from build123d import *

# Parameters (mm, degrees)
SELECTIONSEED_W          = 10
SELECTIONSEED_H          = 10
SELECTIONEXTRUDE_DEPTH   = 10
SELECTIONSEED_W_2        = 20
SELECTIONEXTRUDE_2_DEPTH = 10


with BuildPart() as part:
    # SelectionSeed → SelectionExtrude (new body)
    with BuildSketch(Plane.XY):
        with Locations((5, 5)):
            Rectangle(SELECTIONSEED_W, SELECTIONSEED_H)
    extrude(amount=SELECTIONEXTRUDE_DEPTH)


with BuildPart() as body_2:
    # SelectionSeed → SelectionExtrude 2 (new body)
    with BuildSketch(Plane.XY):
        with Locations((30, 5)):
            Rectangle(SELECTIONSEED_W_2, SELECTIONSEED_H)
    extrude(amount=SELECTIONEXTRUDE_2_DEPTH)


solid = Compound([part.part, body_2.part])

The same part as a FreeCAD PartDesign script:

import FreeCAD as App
import Part
import Sketcher

doc = App.newDocument("Part")
params = doc.addObject("Spreadsheet::Sheet", "Params")
for row, (alias, value) in enumerate([
    ("sketch1_width", "10 mm"),
    ("pad1_length", "10 mm"),
    ("sketch2_width", "20 mm"),
    ("sketch2_height", "10 mm"),
    ("pad2_length", "10 mm"),
], start=1):
    params.set(f"A{row}", alias)
    params.set(f"B{row}", "=" + value)
    params.setAlias(f"B{row}", alias)

body = doc.addObject("PartDesign::Body", "Body")

# Sketch on XY plane
sketch1 = body.newObject("Sketcher::SketchObject", "Sketch")
sketch1.AttachmentSupport = (doc.getObject("XY_Plane"), [""])
sketch1.MapMode = "FlatFace"
sketch1.addGeometry([
    Part.LineSegment(App.Vector(0, 10, 0), App.Vector(0, 0, 0)),
    Part.LineSegment(App.Vector(0, 0, 0), App.Vector(10, 0, 0)),
    Part.LineSegment(App.Vector(10, 0, 0), App.Vector(10, 10, 0)),
    Part.LineSegment(App.Vector(10, 10, 0), App.Vector(0, 10, 0)),
], False)
sketch1.addConstraint([
    Sketcher.Constraint("Coincident", 0, 2, 1, 1),
    Sketcher.Constraint("Coincident", 1, 2, 2, 1),
    Sketcher.Constraint("Coincident", 2, 2, 3, 1),
    Sketcher.Constraint("Coincident", 3, 2, 0, 1),
    Sketcher.Constraint("Vertical", 0),
    Sketcher.Constraint("Horizontal", 1),
    Sketcher.Constraint("Vertical", 2),
    Sketcher.Constraint("Horizontal", 3),
    Sketcher.Constraint("Coincident", 0, 2, -1, 1),
    Sketcher.Constraint("Equal", 3, 0),
    Sketcher.Constraint("DistanceX", 1, 1, 1, 2, 10.0),
])
sketch1.setExpression("Constraints[10]", "Params.sketch1_width")
pad1 = body.newObject("PartDesign::Pad", "Pad")
pad1.Profile = sketch1
pad1.setExpression("Length", "Params.pad1_length")
body2 = doc.addObject("PartDesign::Body", "Body001")

# Sketch on XY plane
sketch2 = body2.newObject("Sketcher::SketchObject", "Sketch001")
sketch2.AttachmentSupport = (doc.getObject("XY_Plane001"), [""])
sketch2.MapMode = "FlatFace"
sketch2.addGeometry([
    Part.LineSegment(App.Vector(20, 10, 0), App.Vector(20, 0, 0)),
    Part.LineSegment(App.Vector(20, 0, 0), App.Vector(40, 0, 0)),
    Part.LineSegment(App.Vector(40, 0, 0), App.Vector(40, 10, 0)),
    Part.LineSegment(App.Vector(40, 10, 0), App.Vector(20, 10, 0)),
], False)
sketch2.addConstraint([
    Sketcher.Constraint("Coincident", 0, 2, 1, 1),
    Sketcher.Constraint("Coincident", 1, 2, 2, 1),
    Sketcher.Constraint("Coincident", 2, 2, 3, 1),
    Sketcher.Constraint("Coincident", 3, 2, 0, 1),
    Sketcher.Constraint("Vertical", 0),
    Sketcher.Constraint("Horizontal", 1),
    Sketcher.Constraint("Vertical", 2),
    Sketcher.Constraint("Horizontal", 3),
    Sketcher.Constraint("PointOnObject", 0, 2, -1),
    Sketcher.Constraint("DistanceX", 1, 1, 1, 2, 20.0),
    Sketcher.Constraint("DistanceY", 0, 2, 0, 1, 10.0),
    Sketcher.Constraint("DistanceX", -1, 1, 0, 2, 20.0),
])
sketch2.setExpression("Constraints[9]", "Params.sketch2_width")
sketch2.setExpression("Constraints[10]", "Params.sketch2_height")
pad2 = body2.newObject("PartDesign::Pad", "Pad001")
pad2.Profile = sketch2
pad2.setExpression("Length", "Params.pad2_length")

doc.recompute()
